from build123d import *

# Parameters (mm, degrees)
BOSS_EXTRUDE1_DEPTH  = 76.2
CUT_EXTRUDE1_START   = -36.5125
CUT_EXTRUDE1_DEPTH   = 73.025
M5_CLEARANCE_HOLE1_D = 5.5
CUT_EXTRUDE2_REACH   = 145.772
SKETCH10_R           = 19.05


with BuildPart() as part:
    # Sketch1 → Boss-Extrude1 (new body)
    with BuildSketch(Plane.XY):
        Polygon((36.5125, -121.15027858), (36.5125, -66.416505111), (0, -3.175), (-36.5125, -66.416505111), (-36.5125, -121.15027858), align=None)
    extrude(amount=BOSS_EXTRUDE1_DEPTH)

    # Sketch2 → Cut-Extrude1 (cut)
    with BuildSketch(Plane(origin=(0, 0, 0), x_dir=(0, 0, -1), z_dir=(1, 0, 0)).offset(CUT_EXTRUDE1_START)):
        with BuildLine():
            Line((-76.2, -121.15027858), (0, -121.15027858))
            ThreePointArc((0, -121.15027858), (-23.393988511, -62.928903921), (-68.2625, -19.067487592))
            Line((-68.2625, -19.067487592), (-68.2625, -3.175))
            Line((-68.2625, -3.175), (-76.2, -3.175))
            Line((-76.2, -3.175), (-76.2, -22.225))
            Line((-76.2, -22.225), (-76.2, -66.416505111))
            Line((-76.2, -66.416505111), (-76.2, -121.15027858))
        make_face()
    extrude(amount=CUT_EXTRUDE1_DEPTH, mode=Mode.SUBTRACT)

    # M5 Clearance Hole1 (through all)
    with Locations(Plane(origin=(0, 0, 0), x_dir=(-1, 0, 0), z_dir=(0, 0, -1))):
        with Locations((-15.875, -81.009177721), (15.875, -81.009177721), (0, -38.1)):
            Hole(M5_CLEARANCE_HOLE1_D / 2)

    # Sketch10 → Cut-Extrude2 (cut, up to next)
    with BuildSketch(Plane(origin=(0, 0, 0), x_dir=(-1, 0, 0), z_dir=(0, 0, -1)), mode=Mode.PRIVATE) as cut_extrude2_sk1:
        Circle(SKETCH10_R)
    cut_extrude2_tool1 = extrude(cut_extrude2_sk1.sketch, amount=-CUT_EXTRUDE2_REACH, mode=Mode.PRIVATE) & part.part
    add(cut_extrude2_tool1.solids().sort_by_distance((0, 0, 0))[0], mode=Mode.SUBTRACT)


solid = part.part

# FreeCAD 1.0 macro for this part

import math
import FreeCAD as App
import Part
import Sketcher
from FreeCAD import Vector
Q = App.Units.Quantity

doc = App.newDocument("Part")
body = doc.addObject("PartDesign::Body", "Body")

# Sketch on XY plane
sketch1 = body.newObject("Sketcher::SketchObject", "Sketch")
sketch1.AttachmentSupport = (doc.getObject("XY_Plane"), [""])
sketch1.MapMode = "FlatFace"
sketch1.addGeometry(Part.LineSegment(Vector(37, -121, 0), Vector(37, -66, 0)), False)
sketch1.addGeometry(Part.LineSegment(Vector(37, -66, 0), Vector(0, -3, 0)), False)
sketch1.addGeometry(Part.LineSegment(Vector(0, -3, 0), Vector(-37, -66, 0)), False)
sketch1.addGeometry(Part.LineSegment(Vector(-37, -66, 0), Vector(-37, -121, 0)), False)
sketch1.addGeometry(Part.LineSegment(Vector(-37, -121, 0), Vector(37, -121, 0)), False)
sketch1.addConstraint(Sketcher.Constraint("Coincident", 0, 2, 1, 1))
sketch1.addConstraint(Sketcher.Constraint("Coincident", 1, 2, 2, 1))
sketch1.addConstraint(Sketcher.Constraint("Coincident", 2, 2, 3, 1))
sketch1.addConstraint(Sketcher.Constraint("Coincident", 3, 2, 4, 1))
sketch1.addConstraint(Sketcher.Constraint("Coincident", 4, 2, 0, 1))
sketch1.addConstraint(Sketcher.Constraint("Vertical", 0))
sketch1.addConstraint(Sketcher.Constraint("Vertical", 3))
sketch1.addConstraint(Sketcher.Constraint("Horizontal", 4))
sketch1.addConstraint(Sketcher.Constraint("Symmetric", 0, 2, 2, 2, -2))
sketch1.addConstraint(Sketcher.Constraint("PointOnObject", 1, 2, -2))
sketch1.addConstraint(Sketcher.Constraint("Angle", 1, Q("120 deg")))
sketch1.addConstraint(Sketcher.Constraint("DistanceX", 4, 1, 4, 2, Q("2.875 in")))
sketch1.addConstraint(Sketcher.Constraint("DistanceY", 1, 2, -1, 1, Q("0.125 in")))
sketch1.addConstraint(Sketcher.Constraint("DistanceY", 0, 1, 0, 2, 54.733773))
pad1 = body.newObject("PartDesign::Pad", "Pad")
pad1.Profile = sketch1
pad1.Length = Q("3 in")

# Sketch on YZ plane
sketch2 = body.newObject("Sketcher::SketchObject", "Sketch001")
sketch2.AttachmentSupport = (doc.getObject("YZ_Plane"), [""])
sketch2.MapMode = "FlatFace"
sketch2.AttachmentOffset = App.Placement(Vector(0, 0, -1.4375 * 25.4), App.Rotation())
sketch2.addGeometry(Part.LineSegment(Vector(-121, 76, 0), Vector(-121, 0, 0)), False)
sketch2.addGeometry(Part.ArcOfCircle(Part.Circle(Vector(-148, 150, 0), Vector(0, 0, 1), 152), math.radians(-80), math.radians(-32)), False)
sketch2.addGeometry(Part.LineSegment(Vector(-19, 68, 0), Vector(-3, 68, 0)), False)
sketch2.addGeometry(Part.LineSegment(Vector(-3, 68, 0), Vector(-3, 76, 0)), False)
sketch2.addGeometry(Part.LineSegment(Vector(-3, 76, 0), Vector(-121, 76, 0)), False)
sketch2.addConstraint(Sketcher.Constraint("Coincident", 0, 2, 1, 1))
sketch2.addConstraint(Sketcher.Constraint("Coincident", 1, 2, 2, 1))
sketch2.addConstraint(Sketcher.Constraint("Coincident", 2, 2, 3, 1))
sketch2.addConstraint(Sketcher.Constraint("Coincident", 3, 2, 4, 1))
sketch2.addConstraint(Sketcher.Constraint("Coincident", 4, 2, 0, 1))
sketch2.addConstraint(Sketcher.Constraint("Vertical", 0))
sketch2.addConstraint(Sketcher.Constraint("Horizontal", 2))
sketch2.addConstraint(Sketcher.Constraint("Vertical", 3))
sketch2.addConstraint(Sketcher.Constraint("Horizontal", 4))
sketch2.addConstraint(Sketcher.Constraint("PointOnObject", 0, 2, -1))
sketch2.addConstraint(Sketcher.Constraint("Radius", 1, Q("6 in")))
sketch2.addConstraint(Sketcher.Constraint("DistanceY", 0, 2, 0, 1, Q("3 in")))
sketch2.addConstraint(Sketcher.Constraint("DistanceY", 3, 1, 3, 2, Q("0.3125 in")))
sketch2.addConstraint(Sketcher.Constraint("DistanceX", 2, 2, -1, 1, Q("0.125 in")))
sketch2.addConstraint(Sketcher.Constraint("DistanceX", 4, 2, 4, 1, 117.975279))
sketch2.addConstraint(Sketcher.Constraint("DistanceX", 2, 1, 2, 2, 15.892488))
pocket1 = body.newObject("PartDesign::Pocket", "Pocket")
pocket1.Profile = sketch2
pocket1.Length = Q("2.875 in")
pocket1.Reversed = True

# Sketch on XY plane
sketch3 = body.newObject("Sketcher::SketchObject", "Sketch002")
sketch3.AttachmentSupport = (doc.getObject("XY_Plane"), [""])
sketch3.MapMode = "FlatFace"
sketch3.addGeometry(Part.Circle(Vector(15.9, -81, 0), Vector(0, 0, 1), 2.8), False)
sketch3.addGeometry(Part.Circle(Vector(-15.9, -81, 0), Vector(0, 0, 1), 2.8), False)
sketch3.addGeometry(Part.Circle(Vector(0, -38.1, 0), Vector(0, 0, 1), 2.8), False)
sketch3.addConstraint(Sketcher.Constraint("Equal", 0, 1))
sketch3.addConstraint(Sketcher.Constraint("Equal", 1, 2))
sketch3.addConstraint(Sketcher.Constraint("Symmetric", 0, 3, 1, 3, -2))
sketch3.addConstraint(Sketcher.Constraint("PointOnObject", 2, 3, -2))
sketch3.addConstraint(Sketcher.Constraint("DistanceY", 2, 3, -1, 1, Q("1.5 in")))
sketch3.addConstraint(Sketcher.Constraint("Diameter", 0, 5.5))
sketch3.addConstraint(Sketcher.Constraint("DistanceX", 1, 3, 0, 3, Q("1.25 in")))
sketch3.addConstraint(Sketcher.Constraint("DistanceY", 0, 3, -1, 1, 81.009178))
doc.recompute()
hole = body.newObject("PartDesign::Hole", "Hole")
hole.Profile = sketch3
hole.ThreadType = "None"
hole.Diameter = 5.5
hole.DepthType = "ThroughAll"
hole.Reversed = True

# Sketch on XY plane
sketch4 = body.newObject("Sketcher::SketchObject", "Sketch003")
sketch4.AttachmentSupport = (doc.getObject("XY_Plane"), [""])
sketch4.MapMode = "FlatFace"
sketch4.addGeometry(Part.Circle(Vector(0, 0, 0), Vector(0, 0, 1), 19), False)
sketch4.addConstraint(Sketcher.Constraint("Coincident", 0, 3, -1, 1))
sketch4.addConstraint(Sketcher.Constraint("Diameter", 0, Q("1.5 in")))
pocket2 = body.newObject("PartDesign::Pocket", "Pocket001")
pocket2.Profile = sketch4
pocket2.Length = Q("2.6875 in")
pocket2.Reversed = True

doc.recompute()
